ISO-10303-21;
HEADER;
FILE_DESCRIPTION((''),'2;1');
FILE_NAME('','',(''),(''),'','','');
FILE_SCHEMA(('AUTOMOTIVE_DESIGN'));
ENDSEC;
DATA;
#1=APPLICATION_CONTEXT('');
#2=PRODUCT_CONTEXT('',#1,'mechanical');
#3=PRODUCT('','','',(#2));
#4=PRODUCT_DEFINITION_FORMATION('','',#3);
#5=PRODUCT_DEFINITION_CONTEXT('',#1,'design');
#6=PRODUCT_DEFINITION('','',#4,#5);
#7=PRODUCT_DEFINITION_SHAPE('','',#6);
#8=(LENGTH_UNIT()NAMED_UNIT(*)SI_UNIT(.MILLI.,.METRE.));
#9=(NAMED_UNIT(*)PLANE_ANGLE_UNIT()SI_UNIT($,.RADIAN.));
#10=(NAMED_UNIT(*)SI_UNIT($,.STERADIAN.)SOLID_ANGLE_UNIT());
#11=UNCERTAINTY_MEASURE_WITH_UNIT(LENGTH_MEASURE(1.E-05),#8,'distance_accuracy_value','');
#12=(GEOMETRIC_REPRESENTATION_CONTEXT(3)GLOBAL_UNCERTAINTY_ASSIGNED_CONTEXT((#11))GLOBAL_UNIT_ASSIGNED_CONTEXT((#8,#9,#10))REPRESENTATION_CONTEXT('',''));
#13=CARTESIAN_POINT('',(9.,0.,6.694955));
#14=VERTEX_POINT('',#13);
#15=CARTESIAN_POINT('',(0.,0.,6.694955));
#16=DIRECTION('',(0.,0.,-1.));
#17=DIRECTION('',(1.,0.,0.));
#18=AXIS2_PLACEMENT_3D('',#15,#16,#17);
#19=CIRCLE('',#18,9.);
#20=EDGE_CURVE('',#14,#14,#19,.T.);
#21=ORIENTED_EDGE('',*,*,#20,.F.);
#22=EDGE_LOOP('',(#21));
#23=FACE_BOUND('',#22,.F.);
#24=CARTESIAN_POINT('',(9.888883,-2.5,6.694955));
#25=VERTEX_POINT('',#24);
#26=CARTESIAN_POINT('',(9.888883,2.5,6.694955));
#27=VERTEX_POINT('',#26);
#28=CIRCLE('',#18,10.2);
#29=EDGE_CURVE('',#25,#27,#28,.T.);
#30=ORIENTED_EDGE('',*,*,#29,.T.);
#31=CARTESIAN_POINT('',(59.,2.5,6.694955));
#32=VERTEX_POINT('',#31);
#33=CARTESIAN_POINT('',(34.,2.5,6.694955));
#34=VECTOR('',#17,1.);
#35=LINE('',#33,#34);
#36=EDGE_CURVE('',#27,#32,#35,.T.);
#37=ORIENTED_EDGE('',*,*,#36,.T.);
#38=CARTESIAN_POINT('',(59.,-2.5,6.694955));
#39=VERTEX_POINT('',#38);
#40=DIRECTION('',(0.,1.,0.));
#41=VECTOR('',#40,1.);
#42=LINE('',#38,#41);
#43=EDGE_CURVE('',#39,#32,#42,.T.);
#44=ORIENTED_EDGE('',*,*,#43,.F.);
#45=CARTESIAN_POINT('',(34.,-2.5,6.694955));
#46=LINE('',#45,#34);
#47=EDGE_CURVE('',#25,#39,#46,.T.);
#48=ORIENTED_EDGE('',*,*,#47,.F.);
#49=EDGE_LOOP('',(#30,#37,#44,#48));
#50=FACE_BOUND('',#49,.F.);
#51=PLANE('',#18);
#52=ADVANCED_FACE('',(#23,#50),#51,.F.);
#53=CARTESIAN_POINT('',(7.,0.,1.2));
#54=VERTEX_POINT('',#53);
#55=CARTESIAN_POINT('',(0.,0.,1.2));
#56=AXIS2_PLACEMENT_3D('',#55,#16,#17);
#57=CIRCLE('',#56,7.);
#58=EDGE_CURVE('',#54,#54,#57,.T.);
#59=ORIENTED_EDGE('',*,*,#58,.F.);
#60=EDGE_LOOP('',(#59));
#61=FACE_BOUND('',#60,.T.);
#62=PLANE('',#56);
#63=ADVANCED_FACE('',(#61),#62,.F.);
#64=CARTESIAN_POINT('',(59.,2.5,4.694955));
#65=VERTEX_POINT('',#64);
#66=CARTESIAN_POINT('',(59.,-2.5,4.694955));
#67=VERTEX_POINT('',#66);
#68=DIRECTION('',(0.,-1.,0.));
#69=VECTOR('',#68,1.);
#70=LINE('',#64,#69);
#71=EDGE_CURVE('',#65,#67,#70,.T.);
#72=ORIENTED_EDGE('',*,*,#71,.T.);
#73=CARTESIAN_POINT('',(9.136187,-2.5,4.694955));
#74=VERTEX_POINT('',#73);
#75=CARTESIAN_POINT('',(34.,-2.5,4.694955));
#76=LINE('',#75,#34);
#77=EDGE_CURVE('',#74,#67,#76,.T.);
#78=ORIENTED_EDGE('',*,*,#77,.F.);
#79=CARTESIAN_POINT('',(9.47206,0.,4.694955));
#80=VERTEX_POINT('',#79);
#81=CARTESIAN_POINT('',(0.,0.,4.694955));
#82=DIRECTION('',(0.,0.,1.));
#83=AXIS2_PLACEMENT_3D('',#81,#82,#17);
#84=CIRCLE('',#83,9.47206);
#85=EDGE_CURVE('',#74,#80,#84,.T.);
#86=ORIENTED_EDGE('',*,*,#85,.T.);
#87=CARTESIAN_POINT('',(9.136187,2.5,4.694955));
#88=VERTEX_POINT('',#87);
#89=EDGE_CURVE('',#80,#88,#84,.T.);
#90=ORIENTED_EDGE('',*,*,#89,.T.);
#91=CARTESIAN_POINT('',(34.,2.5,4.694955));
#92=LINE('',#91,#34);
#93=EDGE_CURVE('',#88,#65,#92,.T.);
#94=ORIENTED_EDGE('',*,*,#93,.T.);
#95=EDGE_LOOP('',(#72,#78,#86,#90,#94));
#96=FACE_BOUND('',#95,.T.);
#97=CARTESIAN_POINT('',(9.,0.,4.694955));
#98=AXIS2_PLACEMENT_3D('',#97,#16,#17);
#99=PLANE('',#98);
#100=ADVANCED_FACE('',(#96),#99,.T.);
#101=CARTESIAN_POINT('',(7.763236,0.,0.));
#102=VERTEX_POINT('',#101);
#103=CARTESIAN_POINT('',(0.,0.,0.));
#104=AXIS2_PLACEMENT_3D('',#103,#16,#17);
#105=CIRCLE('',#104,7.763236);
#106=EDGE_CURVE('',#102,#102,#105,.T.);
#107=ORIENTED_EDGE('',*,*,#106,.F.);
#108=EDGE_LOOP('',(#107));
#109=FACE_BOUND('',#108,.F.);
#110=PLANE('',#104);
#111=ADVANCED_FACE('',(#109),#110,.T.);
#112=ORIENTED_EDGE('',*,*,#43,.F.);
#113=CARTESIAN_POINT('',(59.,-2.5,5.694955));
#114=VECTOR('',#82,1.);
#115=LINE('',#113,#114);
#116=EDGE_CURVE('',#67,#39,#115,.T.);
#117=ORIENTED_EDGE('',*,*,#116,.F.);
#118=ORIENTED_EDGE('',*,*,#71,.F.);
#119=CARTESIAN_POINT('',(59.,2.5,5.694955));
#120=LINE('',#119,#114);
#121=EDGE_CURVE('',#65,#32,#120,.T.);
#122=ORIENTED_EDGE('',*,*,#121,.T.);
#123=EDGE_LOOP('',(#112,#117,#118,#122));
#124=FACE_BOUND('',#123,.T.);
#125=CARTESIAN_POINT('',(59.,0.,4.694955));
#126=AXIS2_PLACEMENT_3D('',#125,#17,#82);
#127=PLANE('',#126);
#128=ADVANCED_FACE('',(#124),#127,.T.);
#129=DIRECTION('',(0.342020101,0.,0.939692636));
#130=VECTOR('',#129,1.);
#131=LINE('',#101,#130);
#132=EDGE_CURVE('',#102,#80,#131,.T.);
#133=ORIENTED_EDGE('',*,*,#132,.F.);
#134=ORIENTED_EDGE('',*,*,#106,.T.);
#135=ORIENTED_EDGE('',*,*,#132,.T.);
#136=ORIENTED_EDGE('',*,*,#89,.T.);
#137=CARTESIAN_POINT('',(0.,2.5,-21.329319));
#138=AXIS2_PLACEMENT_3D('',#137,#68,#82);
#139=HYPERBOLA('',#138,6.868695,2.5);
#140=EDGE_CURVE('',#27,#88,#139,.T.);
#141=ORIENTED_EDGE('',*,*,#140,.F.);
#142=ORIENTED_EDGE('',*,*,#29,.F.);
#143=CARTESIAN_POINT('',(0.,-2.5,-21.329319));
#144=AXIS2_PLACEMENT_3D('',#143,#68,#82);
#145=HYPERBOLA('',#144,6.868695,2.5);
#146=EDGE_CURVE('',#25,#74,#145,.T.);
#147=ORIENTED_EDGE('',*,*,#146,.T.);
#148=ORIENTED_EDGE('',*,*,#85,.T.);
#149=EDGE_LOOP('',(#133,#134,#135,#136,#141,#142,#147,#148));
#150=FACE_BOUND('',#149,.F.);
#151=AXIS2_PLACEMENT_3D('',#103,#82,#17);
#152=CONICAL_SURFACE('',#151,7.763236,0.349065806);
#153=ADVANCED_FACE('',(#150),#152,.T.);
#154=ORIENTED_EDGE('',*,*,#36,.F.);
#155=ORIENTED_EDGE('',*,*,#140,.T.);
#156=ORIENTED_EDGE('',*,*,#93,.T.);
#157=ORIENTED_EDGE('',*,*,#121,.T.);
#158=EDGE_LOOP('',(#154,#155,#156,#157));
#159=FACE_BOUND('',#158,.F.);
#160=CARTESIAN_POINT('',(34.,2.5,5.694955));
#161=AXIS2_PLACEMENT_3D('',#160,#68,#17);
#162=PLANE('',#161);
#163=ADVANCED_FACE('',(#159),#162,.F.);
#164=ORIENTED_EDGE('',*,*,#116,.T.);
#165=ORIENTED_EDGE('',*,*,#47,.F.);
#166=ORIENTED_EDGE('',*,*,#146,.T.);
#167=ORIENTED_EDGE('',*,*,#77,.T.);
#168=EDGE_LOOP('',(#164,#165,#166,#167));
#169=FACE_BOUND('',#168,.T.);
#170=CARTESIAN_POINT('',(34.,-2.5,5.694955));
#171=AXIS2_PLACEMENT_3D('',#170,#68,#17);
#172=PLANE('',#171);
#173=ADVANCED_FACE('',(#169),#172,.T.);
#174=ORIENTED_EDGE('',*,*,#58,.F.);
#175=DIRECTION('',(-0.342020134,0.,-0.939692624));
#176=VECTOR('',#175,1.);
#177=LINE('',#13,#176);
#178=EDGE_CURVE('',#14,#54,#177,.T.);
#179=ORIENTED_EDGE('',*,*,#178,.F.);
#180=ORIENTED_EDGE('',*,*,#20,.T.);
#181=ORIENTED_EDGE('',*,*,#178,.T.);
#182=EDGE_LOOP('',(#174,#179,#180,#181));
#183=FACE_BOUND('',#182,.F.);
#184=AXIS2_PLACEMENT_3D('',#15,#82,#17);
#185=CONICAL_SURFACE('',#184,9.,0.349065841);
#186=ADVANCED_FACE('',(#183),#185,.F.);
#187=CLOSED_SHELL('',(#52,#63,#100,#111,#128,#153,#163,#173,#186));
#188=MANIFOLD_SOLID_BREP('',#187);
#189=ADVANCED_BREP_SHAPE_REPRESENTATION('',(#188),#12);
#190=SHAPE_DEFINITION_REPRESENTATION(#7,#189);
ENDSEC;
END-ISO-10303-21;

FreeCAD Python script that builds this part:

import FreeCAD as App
import Part
import Sketcher
Q = App.Units.Quantity


def add_polygon(sketch, points):
    """Adds a closed chain of lines whose ends are joined by coincident constraints."""
    first, n = sketch.GeometryCount, len(points)
    for a, b in zip(points, points[1:] + points[:1]):
        sketch.addGeometry(Part.LineSegment(App.Vector(*a, 0), App.Vector(*b, 0)), False)
    for i in range(n):
        sketch.addConstraint(Sketcher.Constraint("Coincident", first + i, 2, first + (i + 1) % n, 1))

doc = App.newDocument("Part")
body = doc.addObject("PartDesign::Body", "Body")

sketch1 = doc.addObject("Sketcher::SketchObject", "Sketch")
body.addObject(sketch1)
sketch1.AttachmentSupport = (doc.XZ_Plane, [""])
sketch1.MapMode = "FlatFace"
add_polygon(sketch1, [(9, 6.7), (7, 1.2), (0, 1.2), (0, 0), (7.8, 0), (10.2, 6.7)])
sketch1.addConstraint(Sketcher.Constraint("Horizontal", 1))
sketch1.addConstraint(Sketcher.Constraint("Vertical", 2))
sketch1.addConstraint(Sketcher.Constraint("Horizontal", 3))
sketch1.addConstraint(Sketcher.Constraint("Horizontal", 5))
sketch1.addConstraint(Sketcher.Constraint("Coincident", 2, 2, -1, 1))
sketch1.addConstraint(Sketcher.Constraint("Parallel", 0, 4))
sketch1.addConstraint(Sketcher.Constraint("Equal", 5, 2))
sketch1.addConstraint(Sketcher.Constraint("DistanceX", 1, 2, 1, 1, 7.0))
sketch1.addConstraint(Sketcher.Constraint("Angle", 0, Q("-109.999999 deg")))
sketch1.addConstraint(Sketcher.Constraint("DistanceX", 5, 2, 5, 1, 1.2))
sketch1.addConstraint(Sketcher.Constraint("DistanceX", -1, 1, 5, 2, 9.0))
revolution = doc.addObject("PartDesign::Revolution", "Revolution")
body.addObject(revolution)
revolution.Profile = sketch1
revolution.ReferenceAxis = (sketch1, ["V_Axis"])
revolution.Angle = 360

sketch2 = doc.addObject("Sketcher::SketchObject", "Sketch001")
body.addObject(sketch2)
sketch2.AttachmentSupport = (doc.XZ_Plane, [""])
sketch2.MapMode = "FlatFace"
add_polygon(sketch2, [(9, 6.7), (9, 4.7), (59, 4.7), (59, 6.7)])
sketch2.addConstraint(Sketcher.Constraint("Vertical", 0))
sketch2.addConstraint(Sketcher.Constraint("Horizontal", 1))
sketch2.addConstraint(Sketcher.Constraint("Vertical", 2))
sketch2.addConstraint(Sketcher.Constraint("Horizontal", 3))
sketch2.addConstraint(Sketcher.Constraint("DistanceX", 1, 1, 1, 2, 50.0))
sketch2.addConstraint(Sketcher.Constraint("DistanceY", 0, 2, 0, 1, 2.0))
sketch2.addConstraint(Sketcher.Constraint("DistanceX", -1, 1, 0, 2, 9.0))
sketch2.addConstraint(Sketcher.Constraint("DistanceY", -1, 1, 0, 2, 4.694955))
pad1 = doc.addObject("PartDesign::Pad", "Pad")
body.addObject(pad1)
pad1.Profile = sketch2
pad1.Length = 5
pad1.Midplane = True

doc.recompute()
